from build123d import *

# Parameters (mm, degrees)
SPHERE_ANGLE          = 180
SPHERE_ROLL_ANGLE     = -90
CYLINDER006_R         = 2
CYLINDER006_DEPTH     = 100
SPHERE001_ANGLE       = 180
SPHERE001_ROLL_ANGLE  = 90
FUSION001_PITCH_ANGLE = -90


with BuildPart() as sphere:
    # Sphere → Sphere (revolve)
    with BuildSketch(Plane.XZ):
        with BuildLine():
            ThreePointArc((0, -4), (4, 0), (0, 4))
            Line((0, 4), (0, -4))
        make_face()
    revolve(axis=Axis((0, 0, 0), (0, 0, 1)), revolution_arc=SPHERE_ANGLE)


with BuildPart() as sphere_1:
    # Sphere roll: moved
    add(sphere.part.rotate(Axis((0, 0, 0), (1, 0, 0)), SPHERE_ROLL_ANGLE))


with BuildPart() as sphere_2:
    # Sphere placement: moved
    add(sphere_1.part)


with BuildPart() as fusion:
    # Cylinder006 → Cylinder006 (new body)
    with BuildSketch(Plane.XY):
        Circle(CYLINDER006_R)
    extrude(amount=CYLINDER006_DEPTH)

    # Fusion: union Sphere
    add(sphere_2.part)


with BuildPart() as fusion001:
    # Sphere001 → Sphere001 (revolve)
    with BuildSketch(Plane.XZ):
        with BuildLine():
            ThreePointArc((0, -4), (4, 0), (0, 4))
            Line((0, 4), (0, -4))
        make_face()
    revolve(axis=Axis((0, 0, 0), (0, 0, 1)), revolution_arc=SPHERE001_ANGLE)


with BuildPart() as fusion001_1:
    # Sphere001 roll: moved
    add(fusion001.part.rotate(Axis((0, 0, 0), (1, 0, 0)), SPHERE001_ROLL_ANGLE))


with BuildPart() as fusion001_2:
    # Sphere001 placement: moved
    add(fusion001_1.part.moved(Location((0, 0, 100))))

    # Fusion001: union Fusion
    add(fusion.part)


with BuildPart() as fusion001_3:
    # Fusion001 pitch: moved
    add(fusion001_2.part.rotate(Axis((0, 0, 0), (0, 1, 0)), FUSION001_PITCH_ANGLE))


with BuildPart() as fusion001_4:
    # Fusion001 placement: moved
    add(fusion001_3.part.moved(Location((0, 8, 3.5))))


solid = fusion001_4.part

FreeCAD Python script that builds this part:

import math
import FreeCAD as App
import Part
import Sketcher
from FreeCAD import Vector

doc = App.newDocument("Part")
body = doc.addObject("PartDesign::Body", "Body")

# Sketch on XZ plane
sketch1 = body.newObject("Sketcher::SketchObject", "Sketch")
sketch1.AttachmentSupport = (doc.getObject("XZ_Plane"), [""])
sketch1.MapMode = "FlatFace"
sketch1.addGeometry([
    Part.ArcOfCircle(Part.Circle(Vector(0, 0, 0), Vector(0, 0, 1), 4), math.radians(-90), math.radians(90)),
    Part.LineSegment(Vector(0, 4, 0), Vector(0, -4, 0)),
], False)
sketch1.addConstraint([
    Sketcher.Constraint("Coincident", 0, 1, 1, 2),
    Sketcher.Constraint("Coincident", 1, 1, 0, 2),
    Sketcher.Constraint("Vertical", 1),
    Sketcher.Constraint("Coincident", 0, 3, -1, 1),
    Sketcher.Constraint("PointOnObject", 0, 1, -2),
    Sketcher.Constraint("Radius", 0, 4.0),
])
revolution = body.newObject("PartDesign::Revolution", "Revolution")
revolution.Profile = sketch1
revolution.ReferenceAxis = (sketch1, ["V_Axis"])
revolution.Angle = 180
body2 = doc.addObject("PartDesign::Body", "Body001")
doc.recompute()

body.Placement = App.Placement(Vector(0, 0, 0), App.Rotation(Vector(1, 0, 0), 270))
boolean = body2.newObject("PartDesign::Boolean", "Boolean")
boolean.Type = "Fuse"
boolean.addObjects([body])
body3 = doc.addObject("PartDesign::Body", "Body002")

# Sketch on XY plane
sketch2 = body3.newObject("Sketcher::SketchObject", "Sketch001")
sketch2.AttachmentSupport = (doc.getObject("XY_Plane002"), [""])
sketch2.MapMode = "FlatFace"
sketch2.addGeometry(Part.Circle(Vector(0, 0, 0), Vector(0, 0, 1), 2), False)
sketch2.addConstraint([
    Sketcher.Constraint("Coincident", 0, 3, -1, 1),
    Sketcher.Constraint("Diameter", 0, 4.0),
])
pad1 = body3.newObject("PartDesign::Pad", "Pad")
pad1.Profile = sketch2
pad1.Length = 100
doc.recompute()

boolean2 = body3.newObject("PartDesign::Boolean", "Boolean001")
boolean2.Type = "Fuse"
boolean2.addObjects([body2])
body4 = doc.addObject("PartDesign::Body", "Body003")

# Sketch on XZ plane
sketch3 = body4.newObject("Sketcher::SketchObject", "Sketch002")
sketch3.AttachmentSupport = (doc.getObject("XZ_Plane003"), [""])
sketch3.MapMode = "FlatFace"
sketch3.addGeometry([
    Part.ArcOfCircle(Part.Circle(Vector(0, 0, 0), Vector(0, 0, 1), 4), math.radians(-90), math.radians(90)),
    Part.LineSegment(Vector(0, 4, 0), Vector(0, -4, 0)),
], False)
sketch3.addConstraint([
    Sketcher.Constraint("Coincident", 0, 1, 1, 2),
    Sketcher.Constraint("Coincident", 1, 1, 0, 2),
    Sketcher.Constraint("Vertical", 1),
    Sketcher.Constraint("Coincident", 0, 3, -1, 1),
    Sketcher.Constraint("PointOnObject", 0, 1, -2),
    Sketcher.Constraint("Radius", 0, 4.0),
])
revolution2 = body4.newObject("PartDesign::Revolution", "Revolution001")
revolution2.Profile = sketch3
revolution2.ReferenceAxis = (sketch3, ["V_Axis"])
revolution2.Angle = 180
body5 = doc.addObject("PartDesign::Body", "Body004")
doc.recompute()

body4.Placement = App.Placement(Vector(0, 0, 0), App.Rotation(Vector(1, 0, 0), 90))
boolean3 = body5.newObject("PartDesign::Boolean", "Boolean002")
boolean3.Type = "Fuse"
boolean3.addObjects([body4])
body6 = doc.addObject("PartDesign::Body", "Body005")
doc.recompute()

body5.Placement = App.Placement(Vector(0, 0, 100), App.Rotation(Vector(0, 0, 1), 0))
boolean4 = body6.newObject("PartDesign::Boolean", "Boolean003")
boolean4.Type = "Fuse"
boolean4.addObjects([body5])
doc.recompute()

boolean5 = body6.newObject("PartDesign::Boolean", "Boolean004")
boolean5.Type = "Fuse"
boolean5.addObjects([body3])
body7 = doc.addObject("PartDesign::Body", "Body006")
doc.recompute()

body6.Placement = App.Placement(Vector(0, 0, 0), App.Rotation(Vector(0, 1, 0), 270))
boolean6 = body7.newObject("PartDesign::Boolean", "Boolean005")
boolean6.Type = "Fuse"
boolean6.addObjects([body6])
body8 = doc.addObject("PartDesign::Body", "Body007")
doc.recompute()

body7.Placement = App.Placement(Vector(0, 8, 3.5), App.Rotation(Vector(0, 0, 1), 0))
boolean7 = body8.newObject("PartDesign::Boolean", "Boolean006")
boolean7.Type = "Fuse"
boolean7.addObjects([body7])

doc.recompute()
